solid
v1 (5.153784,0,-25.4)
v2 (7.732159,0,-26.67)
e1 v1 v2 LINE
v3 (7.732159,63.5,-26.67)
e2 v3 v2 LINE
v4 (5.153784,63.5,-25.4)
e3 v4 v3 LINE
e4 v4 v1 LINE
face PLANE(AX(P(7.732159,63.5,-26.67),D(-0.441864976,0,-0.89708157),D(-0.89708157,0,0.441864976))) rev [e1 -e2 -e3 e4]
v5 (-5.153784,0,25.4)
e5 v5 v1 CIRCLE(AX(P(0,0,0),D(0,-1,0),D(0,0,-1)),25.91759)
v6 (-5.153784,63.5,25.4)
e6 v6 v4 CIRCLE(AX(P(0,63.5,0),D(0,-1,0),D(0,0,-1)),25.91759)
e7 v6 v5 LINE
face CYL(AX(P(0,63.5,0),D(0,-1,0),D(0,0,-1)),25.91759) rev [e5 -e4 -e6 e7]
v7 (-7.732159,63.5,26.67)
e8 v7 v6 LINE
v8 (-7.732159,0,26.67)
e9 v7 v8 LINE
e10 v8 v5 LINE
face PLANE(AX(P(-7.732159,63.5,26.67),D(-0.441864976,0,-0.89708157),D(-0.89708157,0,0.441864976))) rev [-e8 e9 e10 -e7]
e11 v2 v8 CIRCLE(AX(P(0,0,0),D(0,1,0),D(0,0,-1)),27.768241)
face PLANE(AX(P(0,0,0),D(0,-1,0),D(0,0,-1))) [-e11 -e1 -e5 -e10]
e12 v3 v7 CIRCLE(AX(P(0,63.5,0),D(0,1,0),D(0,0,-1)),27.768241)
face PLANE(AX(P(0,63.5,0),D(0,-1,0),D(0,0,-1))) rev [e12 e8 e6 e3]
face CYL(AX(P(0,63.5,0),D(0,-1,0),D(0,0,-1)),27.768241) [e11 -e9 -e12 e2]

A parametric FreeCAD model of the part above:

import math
import FreeCAD as App
import Part
import Sketcher

V = App.Vector
Q = App.Units.Quantity

doc = App.newDocument("Part")
params = doc.addObject("Spreadsheet::Sheet", "Params")
for row, (alias, value) in enumerate([
    ("pad1_length", "2.5 in"),
], start=1):
    params.set(f"A{row}", alias)
    params.set(f"B{row}", "=" + value)
    params.setAlias(f"B{row}", alias)

body = doc.addObject("PartDesign::Body", "Body")

sketch1 = body.newObject("Sketcher::SketchObject", "Sketch")
sketch1.AttachmentSupport = (doc.getObject("XZ_Plane"), [""])
sketch1.MapMode = "FlatFace"
sketch1.addGeometry([
    Part.LineSegment(V(5.2, -25.4, 0), V(7.7, -26.7, 0)),
    Part.ArcOfCircle(Part.Circle(V(0, 0, 0), V(0, 0, 1), 27.8), math.radians(106), math.radians(286)),
    Part.LineSegment(V(-7.7, 26.7, 0), V(-5.2, 25.4, 0)),
    Part.ArcOfCircle(Part.Circle(V(0, 0, 0), V(0, 0, 1), 25.9), math.radians(101), math.radians(281)),
], False)
sketch1.addConstraint([
    Sketcher.Constraint("Coincident", 0, 2, 1, 2),
    Sketcher.Constraint("Coincident", 1, 1, 2, 1),
    Sketcher.Constraint("Coincident", 2, 2, 3, 1),
    Sketcher.Constraint("Coincident", 3, 2, 0, 1),
    Sketcher.Constraint("Coincident", 1, 3, -1, 1),
    Sketcher.Constraint("Coincident", 3, 3, -1, 1),
    Sketcher.Constraint("Parallel", 0, 2),
    Sketcher.Constraint("Equal", 0, 2),
    Sketcher.Constraint("DistanceY", -1, 1, 2, 2, Q("1 in")),
    Sketcher.Constraint("DistanceY", 0, 2, 1, 1, Q("2.1 in")),
    Sketcher.Constraint("Radius", 1, Q("27.768241 mm")),
    Sketcher.Constraint("Radius", 3, Q("25.91759 mm")),
])
pad1 = body.newObject("PartDesign::Pad", "Pad")
pad1.Profile = sketch1
pad1.setExpression("Length", "Params.pad1_length")
pad1.Reversed = True

doc.recompute()
